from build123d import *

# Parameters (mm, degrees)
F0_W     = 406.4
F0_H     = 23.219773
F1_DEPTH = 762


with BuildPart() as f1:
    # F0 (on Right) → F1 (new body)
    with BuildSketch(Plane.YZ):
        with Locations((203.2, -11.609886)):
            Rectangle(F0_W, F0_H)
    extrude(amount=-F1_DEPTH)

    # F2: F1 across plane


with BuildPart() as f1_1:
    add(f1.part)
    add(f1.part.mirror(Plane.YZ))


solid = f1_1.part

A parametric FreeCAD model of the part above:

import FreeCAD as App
import Part
import Sketcher

V = App.Vector
Q = App.Units.Quantity

doc = App.newDocument("Part")
body = doc.addObject("PartDesign::Body", "Body")

sketch1 = body.newObject("Sketcher::SketchObject", "Sketch")
sketch1.AttachmentSupport = (doc.getObject("YZ_Plane"), [""])
sketch1.MapMode = "FlatFace"
sketch1.addGeometry(Part.LineSegment(V(0, 0, 0), V(0, -23, 0)), False)
sketch1.addGeometry(Part.LineSegment(V(0, -23, 0), V(406, -23, 0)), False)
sketch1.addGeometry(Part.LineSegment(V(406, -23, 0), V(406, 0, 0)), False)
sketch1.addGeometry(Part.LineSegment(V(406, 0, 0), V(0, 0, 0)), False)
sketch1.addConstraint(Sketcher.Constraint("Coincident", 0, 2, 1, 1))
sketch1.addConstraint(Sketcher.Constraint("Coincident", 1, 2, 2, 1))
sketch1.addConstraint(Sketcher.Constraint("Coincident", 2, 2, 3, 1))
sketch1.addConstraint(Sketcher.Constraint("Coincident", 3, 2, 0, 1))
sketch1.addConstraint(Sketcher.Constraint("Vertical", 0))
sketch1.addConstraint(Sketcher.Constraint("Horizontal", 1))
sketch1.addConstraint(Sketcher.Constraint("Vertical", 2))
sketch1.addConstraint(Sketcher.Constraint("Horizontal", 3))
sketch1.addConstraint(Sketcher.Constraint("Coincident", 3, 2, -1, 1))
sketch1.addConstraint(Sketcher.Constraint("DistanceX", 1, 1, 1, 2, Q("16 in")))
sketch1.addConstraint(Sketcher.Constraint("DistanceY", 0, 2, 0, 1, 23.219773))
pad1 = body.newObject("PartDesign::Pad", "Pad")
pad1.Profile = sketch1
pad1.Length = Q("30 in")
pad1.Reversed = True
body2 = doc.addObject("PartDesign::Body", "Body001")
doc.recompute()

body2.BaseFeature = body
doc.recompute()

mirroring = doc.addObject("Part::Mirroring", "Mirroring")
mirroring.Source = body
mirroring.Base = V(0, 0, 0)
mirroring.Normal = V(1, 0, 0)
body3 = doc.addObject("PartDesign::Body", "Body002")
body3.BaseFeature = mirroring
boolean = body2.newObject("PartDesign::Boolean", "Boolean")
boolean.Type = "Fuse"
boolean.addObjects([body3])
doc.recompute()
mirroring.Visibility = False

doc.recompute()
